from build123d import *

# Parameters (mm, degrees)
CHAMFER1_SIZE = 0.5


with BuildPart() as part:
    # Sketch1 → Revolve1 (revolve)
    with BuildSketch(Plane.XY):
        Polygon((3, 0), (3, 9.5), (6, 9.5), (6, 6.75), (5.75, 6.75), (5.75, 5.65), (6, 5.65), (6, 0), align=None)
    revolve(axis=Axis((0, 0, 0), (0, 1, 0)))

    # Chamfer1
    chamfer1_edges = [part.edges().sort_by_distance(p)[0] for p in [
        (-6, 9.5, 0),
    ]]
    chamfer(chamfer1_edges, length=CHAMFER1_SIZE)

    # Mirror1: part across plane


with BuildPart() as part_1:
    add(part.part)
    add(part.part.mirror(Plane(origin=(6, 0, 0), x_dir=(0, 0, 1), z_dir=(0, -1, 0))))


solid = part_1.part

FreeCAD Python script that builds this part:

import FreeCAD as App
import Part
import Sketcher


def edges_at(feature, points):
    """Names of the edges that pass closest to the given points."""
    edges = feature.Shape.Edges
    near = lambda p: min(range(len(edges)), key=lambda i: edges[i].distToShape(Part.Vertex(*p))[0])
    return sorted({f"Edge{near(p) + 1}" for p in points})


def add_polygon(sketch, points):
    """Adds a closed chain of lines whose ends are joined by coincident constraints."""
    first, n = sketch.GeometryCount, len(points)
    for a, b in zip(points, points[1:] + points[:1]):
        sketch.addGeometry(Part.LineSegment(App.Vector(*a, 0), App.Vector(*b, 0)), False)
    for i in range(n):
        sketch.addConstraint(Sketcher.Constraint("Coincident", first + i, 2, first + (i + 1) % n, 1))

doc = App.newDocument("Part")
body = doc.addObject("PartDesign::Body", "Body")

# Sketch on XY plane
sketch1 = doc.addObject("Sketcher::SketchObject", "Sketch")
body.addObject(sketch1)
sketch1.AttachmentSupport = (doc.XY_Plane, [""])
sketch1.MapMode = "FlatFace"
add_polygon(sketch1, [(3, 9.5), (3, 0), (6, 0), (6, 5.65), (5.75, 5.65), (5.75, 6.75), (6, 6.75), (6, 9.5)])  # lines 0-7
sketch1.addConstraint([
    Sketcher.Constraint("Vertical", 0),
    Sketcher.Constraint("Horizontal", 1),
    Sketcher.Constraint("Vertical", 2),
    Sketcher.Constraint("Horizontal", 3),
    Sketcher.Constraint("Vertical", 4),
    Sketcher.Constraint("Horizontal", 5),
    Sketcher.Constraint("Vertical", 6),
    Sketcher.Constraint("Horizontal", 7),
    Sketcher.Constraint("PointOnObject", 0, 2, -1),
    Sketcher.Constraint("Vertical", 2, 2, 5, 2),
    Sketcher.Constraint("DistanceX", 1, 1, 1, 2, 3.0),
    Sketcher.Constraint("DistanceY", 0, 2, 0, 1, 9.5),
    Sketcher.Constraint("DistanceY", 4, 1, 4, 2, 1.1),
    Sketcher.Constraint("DistanceX", -1, 1, 0, 2, 3.0),
    Sketcher.Constraint("DistanceX", 3, 2, 3, 1, 0.25),
    Sketcher.Constraint("DistanceY", 2, 1, 2, 2, 5.65),
])
revolution = doc.addObject("PartDesign::Revolution", "Revolution")
body.addObject(revolution)
revolution.Profile = sketch1
revolution.ReferenceAxis = (sketch1, ["V_Axis"])
revolution.Angle = 360
doc.recompute()

chamfer = doc.addObject("PartDesign::Chamfer", "Chamfer")
body.addObject(chamfer)
chamfer.Base = (revolution, edges_at(revolution, [(-6, 9.5, 0)]))
chamfer.Size = 0.5
body2 = doc.addObject("PartDesign::Body", "Body001")
doc.recompute()

body2.BaseFeature = body
doc.recompute()

mirroring = doc.addObject("Part::Mirroring", "Mirroring")
mirroring.Source = body
mirroring.Base = App.Vector(6, 0, 0)
mirroring.Normal = App.Vector(0, -1, 0)
body3 = doc.addObject("PartDesign::Body", "Body002")
body3.BaseFeature = mirroring
boolean = doc.addObject("PartDesign::Boolean", "Boolean")
body2.addObject(boolean)
boolean.Type = "Fuse"
boolean.addObjects([body3])
doc.recompute()
mirroring.Visibility = False

doc.recompute()
